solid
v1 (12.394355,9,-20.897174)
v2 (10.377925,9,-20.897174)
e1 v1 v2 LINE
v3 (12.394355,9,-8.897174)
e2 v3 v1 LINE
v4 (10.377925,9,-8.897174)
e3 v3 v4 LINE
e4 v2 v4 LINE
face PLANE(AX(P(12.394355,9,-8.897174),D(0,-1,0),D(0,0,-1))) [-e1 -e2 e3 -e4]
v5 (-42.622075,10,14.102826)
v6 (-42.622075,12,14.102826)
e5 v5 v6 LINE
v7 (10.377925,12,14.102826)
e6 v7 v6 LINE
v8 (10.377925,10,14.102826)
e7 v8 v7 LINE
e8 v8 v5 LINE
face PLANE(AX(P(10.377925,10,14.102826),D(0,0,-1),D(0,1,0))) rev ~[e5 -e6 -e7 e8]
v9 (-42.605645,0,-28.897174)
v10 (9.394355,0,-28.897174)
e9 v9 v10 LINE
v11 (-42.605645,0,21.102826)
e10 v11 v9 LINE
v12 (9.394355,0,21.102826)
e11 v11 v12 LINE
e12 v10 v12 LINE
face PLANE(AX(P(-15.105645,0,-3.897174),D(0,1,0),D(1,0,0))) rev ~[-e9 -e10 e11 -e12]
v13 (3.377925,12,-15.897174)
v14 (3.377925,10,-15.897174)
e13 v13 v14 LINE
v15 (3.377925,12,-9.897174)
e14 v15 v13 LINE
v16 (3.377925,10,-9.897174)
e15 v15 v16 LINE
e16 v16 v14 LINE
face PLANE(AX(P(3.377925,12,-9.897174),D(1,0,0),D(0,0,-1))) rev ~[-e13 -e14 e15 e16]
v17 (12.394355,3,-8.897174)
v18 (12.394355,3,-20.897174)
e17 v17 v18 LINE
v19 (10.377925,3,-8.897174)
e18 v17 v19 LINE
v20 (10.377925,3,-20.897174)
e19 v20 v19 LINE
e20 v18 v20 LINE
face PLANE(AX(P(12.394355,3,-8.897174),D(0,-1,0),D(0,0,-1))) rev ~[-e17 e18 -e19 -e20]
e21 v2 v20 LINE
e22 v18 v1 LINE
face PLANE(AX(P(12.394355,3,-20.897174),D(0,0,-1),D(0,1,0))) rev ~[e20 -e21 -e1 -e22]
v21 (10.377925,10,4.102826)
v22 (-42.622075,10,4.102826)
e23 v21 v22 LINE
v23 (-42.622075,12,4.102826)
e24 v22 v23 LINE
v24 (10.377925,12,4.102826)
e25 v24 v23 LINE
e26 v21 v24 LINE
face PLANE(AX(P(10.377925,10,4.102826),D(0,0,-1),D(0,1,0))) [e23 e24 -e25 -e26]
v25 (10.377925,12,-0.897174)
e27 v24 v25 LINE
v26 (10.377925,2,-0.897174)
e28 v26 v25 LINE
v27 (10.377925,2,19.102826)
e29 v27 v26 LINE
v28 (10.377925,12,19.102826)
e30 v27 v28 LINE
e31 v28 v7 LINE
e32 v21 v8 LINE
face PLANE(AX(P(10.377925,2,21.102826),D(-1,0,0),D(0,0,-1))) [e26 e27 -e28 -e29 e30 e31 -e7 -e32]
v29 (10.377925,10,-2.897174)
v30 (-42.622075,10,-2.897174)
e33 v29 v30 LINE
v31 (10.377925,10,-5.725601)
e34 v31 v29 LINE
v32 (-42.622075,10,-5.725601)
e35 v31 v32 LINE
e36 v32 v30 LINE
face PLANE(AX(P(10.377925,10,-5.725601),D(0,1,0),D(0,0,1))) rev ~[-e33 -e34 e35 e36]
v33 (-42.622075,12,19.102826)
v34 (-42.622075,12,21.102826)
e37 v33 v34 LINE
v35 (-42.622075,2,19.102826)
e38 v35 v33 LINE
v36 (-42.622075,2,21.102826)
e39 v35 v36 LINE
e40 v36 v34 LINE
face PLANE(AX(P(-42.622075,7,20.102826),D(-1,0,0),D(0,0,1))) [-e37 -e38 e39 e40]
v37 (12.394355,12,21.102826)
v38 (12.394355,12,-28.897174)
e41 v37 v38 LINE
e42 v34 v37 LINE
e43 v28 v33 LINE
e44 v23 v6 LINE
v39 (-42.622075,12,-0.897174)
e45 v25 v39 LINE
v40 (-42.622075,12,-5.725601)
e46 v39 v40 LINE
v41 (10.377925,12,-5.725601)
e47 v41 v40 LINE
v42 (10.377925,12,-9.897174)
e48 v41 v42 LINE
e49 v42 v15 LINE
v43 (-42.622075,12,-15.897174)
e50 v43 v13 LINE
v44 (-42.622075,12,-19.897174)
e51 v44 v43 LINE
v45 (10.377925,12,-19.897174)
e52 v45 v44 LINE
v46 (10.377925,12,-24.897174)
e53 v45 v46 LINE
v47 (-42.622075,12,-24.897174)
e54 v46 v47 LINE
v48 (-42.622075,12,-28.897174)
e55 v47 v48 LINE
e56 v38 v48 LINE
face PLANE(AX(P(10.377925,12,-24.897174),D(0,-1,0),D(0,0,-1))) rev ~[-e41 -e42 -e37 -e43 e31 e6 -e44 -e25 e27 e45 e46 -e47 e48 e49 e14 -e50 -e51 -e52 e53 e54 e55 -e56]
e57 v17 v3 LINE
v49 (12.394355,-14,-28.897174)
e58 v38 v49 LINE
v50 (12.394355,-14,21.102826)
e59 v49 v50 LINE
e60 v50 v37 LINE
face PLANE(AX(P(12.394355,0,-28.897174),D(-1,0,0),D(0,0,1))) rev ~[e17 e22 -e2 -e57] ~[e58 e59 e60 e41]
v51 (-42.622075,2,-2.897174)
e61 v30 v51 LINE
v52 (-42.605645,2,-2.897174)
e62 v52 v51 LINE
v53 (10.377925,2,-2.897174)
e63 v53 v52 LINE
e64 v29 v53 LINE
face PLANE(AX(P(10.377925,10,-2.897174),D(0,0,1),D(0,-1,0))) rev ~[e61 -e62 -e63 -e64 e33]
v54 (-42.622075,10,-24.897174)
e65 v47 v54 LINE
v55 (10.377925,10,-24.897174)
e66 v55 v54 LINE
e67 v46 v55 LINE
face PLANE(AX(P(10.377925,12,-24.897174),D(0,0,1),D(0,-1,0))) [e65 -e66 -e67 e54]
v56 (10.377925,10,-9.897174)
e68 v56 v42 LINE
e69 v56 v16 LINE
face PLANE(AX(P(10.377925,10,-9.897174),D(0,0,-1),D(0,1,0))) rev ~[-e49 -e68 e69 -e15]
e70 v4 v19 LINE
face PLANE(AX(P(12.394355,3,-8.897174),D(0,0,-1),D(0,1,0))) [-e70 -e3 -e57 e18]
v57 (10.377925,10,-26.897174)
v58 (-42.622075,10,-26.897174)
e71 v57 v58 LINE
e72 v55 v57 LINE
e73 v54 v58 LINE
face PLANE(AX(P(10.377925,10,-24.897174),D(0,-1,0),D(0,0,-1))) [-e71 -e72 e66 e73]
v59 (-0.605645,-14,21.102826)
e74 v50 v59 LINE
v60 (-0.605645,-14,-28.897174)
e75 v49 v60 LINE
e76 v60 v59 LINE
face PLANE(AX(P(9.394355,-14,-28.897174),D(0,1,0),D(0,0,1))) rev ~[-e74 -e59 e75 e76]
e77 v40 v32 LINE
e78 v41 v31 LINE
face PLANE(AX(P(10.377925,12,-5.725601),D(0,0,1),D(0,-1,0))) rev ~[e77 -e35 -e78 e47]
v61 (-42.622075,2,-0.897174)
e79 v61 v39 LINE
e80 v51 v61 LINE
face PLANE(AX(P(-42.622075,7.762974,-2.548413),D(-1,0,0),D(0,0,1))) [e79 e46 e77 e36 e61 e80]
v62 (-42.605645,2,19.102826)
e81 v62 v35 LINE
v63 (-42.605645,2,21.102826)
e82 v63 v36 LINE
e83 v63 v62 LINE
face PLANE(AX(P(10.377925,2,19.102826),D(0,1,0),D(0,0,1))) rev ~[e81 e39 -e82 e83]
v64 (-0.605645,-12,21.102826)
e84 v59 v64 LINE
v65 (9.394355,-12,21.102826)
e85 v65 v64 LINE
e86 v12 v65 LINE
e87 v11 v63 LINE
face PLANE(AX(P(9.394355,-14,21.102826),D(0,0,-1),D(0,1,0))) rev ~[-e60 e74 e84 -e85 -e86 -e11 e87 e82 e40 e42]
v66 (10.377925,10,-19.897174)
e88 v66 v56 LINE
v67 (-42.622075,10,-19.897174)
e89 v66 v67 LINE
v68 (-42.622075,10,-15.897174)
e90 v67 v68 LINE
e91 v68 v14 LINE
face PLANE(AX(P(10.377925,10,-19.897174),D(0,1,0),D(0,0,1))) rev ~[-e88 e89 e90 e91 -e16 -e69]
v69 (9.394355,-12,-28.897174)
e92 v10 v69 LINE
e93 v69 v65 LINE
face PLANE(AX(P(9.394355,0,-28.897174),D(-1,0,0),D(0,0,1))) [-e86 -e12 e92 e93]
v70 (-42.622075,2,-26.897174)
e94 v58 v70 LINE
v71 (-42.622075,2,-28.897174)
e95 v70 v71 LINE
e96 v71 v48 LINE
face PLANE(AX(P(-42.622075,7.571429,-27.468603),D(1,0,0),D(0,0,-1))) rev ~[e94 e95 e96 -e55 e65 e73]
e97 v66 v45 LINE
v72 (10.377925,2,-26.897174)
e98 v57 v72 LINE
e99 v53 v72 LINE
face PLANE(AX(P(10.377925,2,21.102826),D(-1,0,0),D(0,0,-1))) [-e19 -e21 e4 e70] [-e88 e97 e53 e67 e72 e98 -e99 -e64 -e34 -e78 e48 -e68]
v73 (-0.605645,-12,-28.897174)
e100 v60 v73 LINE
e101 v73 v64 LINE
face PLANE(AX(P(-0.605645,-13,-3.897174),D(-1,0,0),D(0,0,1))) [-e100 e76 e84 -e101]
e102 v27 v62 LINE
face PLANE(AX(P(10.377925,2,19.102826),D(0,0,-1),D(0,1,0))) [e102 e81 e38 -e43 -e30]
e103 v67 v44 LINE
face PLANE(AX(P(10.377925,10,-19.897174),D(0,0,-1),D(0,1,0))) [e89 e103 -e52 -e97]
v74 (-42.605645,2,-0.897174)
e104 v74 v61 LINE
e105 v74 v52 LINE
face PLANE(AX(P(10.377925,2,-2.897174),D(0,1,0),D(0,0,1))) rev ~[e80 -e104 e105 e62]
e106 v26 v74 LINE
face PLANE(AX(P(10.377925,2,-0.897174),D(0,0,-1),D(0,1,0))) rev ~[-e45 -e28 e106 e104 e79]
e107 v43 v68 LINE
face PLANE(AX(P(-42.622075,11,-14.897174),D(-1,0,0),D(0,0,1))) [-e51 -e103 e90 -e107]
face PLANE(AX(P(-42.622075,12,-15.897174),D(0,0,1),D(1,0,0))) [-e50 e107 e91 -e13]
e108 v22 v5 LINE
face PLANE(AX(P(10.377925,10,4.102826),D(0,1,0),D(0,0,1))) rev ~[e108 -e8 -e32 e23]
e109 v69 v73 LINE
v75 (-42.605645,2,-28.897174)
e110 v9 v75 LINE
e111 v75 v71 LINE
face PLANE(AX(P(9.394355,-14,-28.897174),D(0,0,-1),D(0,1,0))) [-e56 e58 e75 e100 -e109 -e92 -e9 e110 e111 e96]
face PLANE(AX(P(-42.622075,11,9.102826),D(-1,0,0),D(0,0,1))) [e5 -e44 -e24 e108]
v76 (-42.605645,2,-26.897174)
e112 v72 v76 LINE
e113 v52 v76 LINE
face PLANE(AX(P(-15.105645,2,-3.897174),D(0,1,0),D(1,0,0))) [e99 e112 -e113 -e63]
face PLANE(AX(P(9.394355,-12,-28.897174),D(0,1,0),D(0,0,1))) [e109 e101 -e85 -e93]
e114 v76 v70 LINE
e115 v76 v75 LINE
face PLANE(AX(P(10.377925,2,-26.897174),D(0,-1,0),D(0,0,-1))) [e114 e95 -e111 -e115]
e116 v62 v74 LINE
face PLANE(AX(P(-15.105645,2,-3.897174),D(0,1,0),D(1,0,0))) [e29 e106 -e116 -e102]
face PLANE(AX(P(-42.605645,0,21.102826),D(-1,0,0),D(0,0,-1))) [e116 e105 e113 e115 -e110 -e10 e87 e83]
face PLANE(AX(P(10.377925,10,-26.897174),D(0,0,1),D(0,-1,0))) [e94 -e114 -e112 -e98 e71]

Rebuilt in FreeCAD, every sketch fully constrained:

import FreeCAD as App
import Part
import Sketcher


def add_polygon(sketch, points):
    """Adds a closed chain of lines whose ends are joined by coincident constraints."""
    first, n = sketch.GeometryCount, len(points)
    for a, b in zip(points, points[1:] + points[:1]):
        sketch.addGeometry(Part.LineSegment(App.Vector(*a, 0), App.Vector(*b, 0)), False)
    for i in range(n):
        sketch.addConstraint(Sketcher.Constraint("Coincident", first + i, 2, first + (i + 1) % n, 1))

doc = App.newDocument("Part")
params = doc.addObject("Spreadsheet::Sheet", "Params")
for row, (alias, value) in enumerate([
    ("sketch1_width", "55 mm"),
    ("sketch1_height", "50 mm"),
    ("pad1_length", "2 mm"),
    ("sketch2_height", "50 mm"),
    ("pad2_length", "10 mm"),
    ("sketch3_width", "2 mm"),
    ("sketch3_width2", "10 mm"),
    ("pad3_length", "53 mm"),
    ("sketch4_width", "6 mm"),
    ("sketch4_height", "12 mm"),
    ("pocket1_length", "40 mm"),
    ("sketch5_width", "46 mm"),
    ("sketch5_height", "6 mm"),
    ("pocket2_length", "2 mm"),
    ("sketch6_width", "3 mm"),
    ("sketch6_height", "50 mm"),
    ("pad4_length", "14 mm"),
    ("sketch7_width", "2 mm"),
    ("sketch7_height", "50 mm"),
    ("pad5_length", "10 mm"),
], start=1):
    params.set(f"A{row}", alias)
    params.set(f"B{row}", "=" + value)
    params.setAlias(f"B{row}", alias)

body = doc.addObject("PartDesign::Body", "Body")

# Sketch on XZ plane
sketch1 = doc.addObject("Sketcher::SketchObject", "Sketch")
body.addObject(sketch1)
sketch1.AttachmentSupport = (doc.XZ_Plane, [""])
sketch1.MapMode = "FlatFace"
add_polygon(sketch1, [(-43, -29), (-43, 21), (12, 21), (12, -29)])  # lines 0-3
sketch1.addConstraint(Sketcher.Constraint("Vertical", 0))
sketch1.addConstraint(Sketcher.Constraint("Horizontal", 1))
sketch1.addConstraint(Sketcher.Constraint("Vertical", 2))
sketch1.addConstraint(Sketcher.Constraint("Horizontal", 3))
sketch1.addConstraint(Sketcher.Constraint("DistanceX", 1, 1, 1, 2, 55.0))
sketch1.addConstraint(Sketcher.Constraint("DistanceY", 0, 1, 0, 2, 50.0))
sketch1.addConstraint(Sketcher.Constraint("DistanceX", 0, 2, -1, 1, 42.605645))
sketch1.addConstraint(Sketcher.Constraint("DistanceY", -1, 1, 0, 2, 21.102826))
sketch1.setExpression("Constraints[8]", "Params.sketch1_width")
sketch1.setExpression("Constraints[9]", "Params.sketch1_height")
pad1 = doc.addObject("PartDesign::Pad", "Pad")
body.addObject(pad1)
pad1.Profile = sketch1
pad1.setExpression("Length", "Params.pad1_length")
pad1.Reversed = True

# Sketch on XZ plane
sketch2 = doc.addObject("Sketcher::SketchObject", "Sketch001")
body.addObject(sketch2)
sketch2.AttachmentSupport = (doc.XZ_Plane, [""])
sketch2.MapMode = "FlatFace"
sketch2.AttachmentOffset = App.Placement(App.Vector(0, 0, -2), App.Rotation())
add_polygon(sketch2, [(10.4, -28.9), (10.4, 21.1), (12.4, 21.1), (12.4, -28.9)])  # lines 0-3
sketch2.addConstraint(Sketcher.Constraint("Vertical", 0))
sketch2.addConstraint(Sketcher.Constraint("Horizontal", 1))
sketch2.addConstraint(Sketcher.Constraint("Vertical", 2))
sketch2.addConstraint(Sketcher.Constraint("Horizontal", 3))
sketch2.addConstraint(Sketcher.Constraint("DistanceY", 0, 1, 0, 2, 50.0))
sketch2.addConstraint(Sketcher.Constraint("DistanceX", 1, 1, 1, 2, 2.01643))
sketch2.addConstraint(Sketcher.Constraint("DistanceX", -1, 1, 0, 2, 10.377925))
sketch2.addConstraint(Sketcher.Constraint("DistanceY", -1, 1, 0, 2, 21.102826))
sketch2.setExpression("Constraints[8]", "Params.sketch2_height")
pad2 = doc.addObject("PartDesign::Pad", "Pad001")
body.addObject(pad2)
pad2.Profile = sketch2
pad2.setExpression("Length", "Params.pad2_length")
pad2.Reversed = True

# Sketch on YZ plane
sketch3 = doc.addObject("Sketcher::SketchObject", "Sketch002")
body.addObject(sketch3)
sketch3.AttachmentSupport = (doc.YZ_Plane, [""])
sketch3.MapMode = "FlatFace"
sketch3.AttachmentOffset = App.Placement(App.Vector(0, 0, 10.377925), App.Rotation())
add_polygon(sketch3, [(12, -19.9), (10, -19.9), (10, -9.9), (12, -9.9)])  # lines 0-3
add_polygon(sketch3, [(12, -24.9), (12, -28.9), (2, -28.9), (2, -26.9), (10, -26.9), (10, -24.9)])  # lines 4-9
add_polygon(sketch3, [(10, -2.9), (2, -2.9), (2, -0.9), (12, -0.9), (12, -5.7), (10, -5.7)])  # lines 10-15
add_polygon(sketch3, [(12, 4.1), (10, 4.1), (10, 14.1), (12, 14.1)])  # lines 16-19
add_polygon(sketch3, [(12, 19.1), (2, 19.1), (2, 21.1), (12, 21.1)])  # lines 20-23
sketch3.addConstraint(Sketcher.Constraint("Horizontal", 0))
sketch3.addConstraint(Sketcher.Constraint("Vertical", 1))
sketch3.addConstraint(Sketcher.Constraint("Horizontal", 2))
sketch3.addConstraint(Sketcher.Constraint("Vertical", 3))
sketch3.addConstraint(Sketcher.Constraint("Vertical", 4))
sketch3.addConstraint(Sketcher.Constraint("Horizontal", 5))
sketch3.addConstraint(Sketcher.Constraint("Vertical", 6))
sketch3.addConstraint(Sketcher.Constraint("Horizontal", 7))
sketch3.addConstraint(Sketcher.Constraint("Vertical", 8))
sketch3.addConstraint(Sketcher.Constraint("Horizontal", 9))
sketch3.addConstraint(Sketcher.Constraint("Horizontal", 10))
sketch3.addConstraint(Sketcher.Constraint("Vertical", 11))
sketch3.addConstraint(Sketcher.Constraint("Horizontal", 12))
sketch3.addConstraint(Sketcher.Constraint("Vertical", 13))
sketch3.addConstraint(Sketcher.Constraint("Horizontal", 14))
sketch3.addConstraint(Sketcher.Constraint("Vertical", 15))
sketch3.addConstraint(Sketcher.Constraint("Horizontal", 16))
sketch3.addConstraint(Sketcher.Constraint("Vertical", 17))
sketch3.addConstraint(Sketcher.Constraint("Horizontal", 18))
sketch3.addConstraint(Sketcher.Constraint("Vertical", 19))
sketch3.addConstraint(Sketcher.Constraint("Horizontal", 20))
sketch3.addConstraint(Sketcher.Constraint("Vertical", 21))
sketch3.addConstraint(Sketcher.Constraint("Horizontal", 22))
sketch3.addConstraint(Sketcher.Constraint("Vertical", 23))
sketch3.addConstraint(Sketcher.Constraint("Vertical", 3, 2, 4, 2))
sketch3.addConstraint(Sketcher.Constraint("Vertical", 1, 2, 7, 2))
sketch3.addConstraint(Sketcher.Constraint("Vertical", 6, 2, 10, 2))
sketch3.addConstraint(Sketcher.Constraint("Vertical", 9, 2, 12, 2))
sketch3.addConstraint(Sketcher.Constraint("Vertical", 8, 2, 14, 2))
sketch3.addConstraint(Sketcher.Constraint("Vertical", 15, 2, 16, 2))
sketch3.addConstraint(Sketcher.Constraint("Vertical", 13, 2, 18, 2))
sketch3.addConstraint(Sketcher.Constraint("Vertical", 11, 2, 20, 2))
sketch3.addConstraint(Sketcher.Constraint("Vertical", 19, 2, 22, 2))
sketch3.addConstraint(Sketcher.Constraint("Equal", 22, 1))
sketch3.addConstraint(Sketcher.Constraint("Equal", 18, 6))
sketch3.addConstraint(Sketcher.Constraint("Equal", 6, 8))
sketch3.addConstraint(Sketcher.Constraint("Equal", 8, 11))
sketch3.addConstraint(Sketcher.Constraint("Equal", 3, 17))
sketch3.addConstraint(Sketcher.Constraint("Equal", 11, 21))
sketch3.addConstraint(Sketcher.Constraint("DistanceX", 0, 2, 0, 1, 2.0))
sketch3.addConstraint(Sketcher.Constraint("DistanceX", 5, 2, 5, 1, 10.0))
sketch3.addConstraint(Sketcher.Constraint("DistanceX", -1, 1, 0, 2, 10.0))
sketch3.addConstraint(Sketcher.Constraint("DistanceY", 4, 2, 3, 2, 9.0))
sketch3.addConstraint(Sketcher.Constraint("DistanceY", 1, 2, 10, 2, 7.0))
sketch3.addConstraint(Sketcher.Constraint("DistanceY", 12, 2, 16, 2, 5.0))
sketch3.addConstraint(Sketcher.Constraint("DistanceY", 17, 2, 20, 2, 5.0))
sketch3.addConstraint(Sketcher.Constraint("DistanceY", 13, 2, -1, 1, 5.725601))
sketch3.addConstraint(Sketcher.Constraint("DistanceY", 13, 2, 13, 1, 4.828427))
sketch3.setExpression("Constraints[63]", "Params.sketch3_width")
sketch3.setExpression("Constraints[64]", "Params.sketch3_width2")
pad3 = doc.addObject("PartDesign::Pad", "Pad002")
body.addObject(pad3)
pad3.Profile = sketch3
pad3.setExpression("Length", "Params.pad3_length")
pad3.Reversed = True

# Sketch on YZ plane
sketch4 = doc.addObject("Sketcher::SketchObject", "Sketch003")
body.addObject(sketch4)
sketch4.AttachmentSupport = (doc.YZ_Plane, [""])
sketch4.MapMode = "FlatFace"
sketch4.AttachmentOffset = App.Placement(App.Vector(0, 0, 12.394355), App.Rotation())
add_polygon(sketch4, [(9, -9), (3, -9), (3, -21), (9, -21)])  # lines 0-3
sketch4.addConstraint(Sketcher.Constraint("Horizontal", 0))
sketch4.addConstraint(Sketcher.Constraint("Vertical", 1))
sketch4.addConstraint(Sketcher.Constraint("Horizontal", 2))
sketch4.addConstraint(Sketcher.Constraint("Vertical", 3))
sketch4.addConstraint(Sketcher.Constraint("DistanceX", 0, 2, 0, 1, 6.0))
sketch4.addConstraint(Sketcher.Constraint("DistanceY", 1, 2, 1, 1, 12.0))
sketch4.addConstraint(Sketcher.Constraint("DistanceX", -1, 1, 0, 2, 3.0))
sketch4.addConstraint(Sketcher.Constraint("DistanceY", 0, 2, -1, 1, 8.897174))
sketch4.setExpression("Constraints[8]", "Params.sketch4_width")
sketch4.setExpression("Constraints[9]", "Params.sketch4_height")
pocket1 = doc.addObject("PartDesign::Pocket", "Pocket")
body.addObject(pocket1)
pocket1.Profile = sketch4
pocket1.setExpression("Length", "Params.pocket1_length")

# Sketch on XZ plane
sketch5 = doc.addObject("Sketcher::SketchObject", "Sketch004")
body.addObject(sketch5)
sketch5.AttachmentSupport = (doc.XZ_Plane, [""])
sketch5.MapMode = "FlatFace"
sketch5.AttachmentOffset = App.Placement(App.Vector(0, 0, -12), App.Rotation())
add_polygon(sketch5, [(-43, -16), (-43, -10), (3, -10), (3, -16)])  # lines 0-3
sketch5.addConstraint(Sketcher.Constraint("Vertical", 0))
sketch5.addConstraint(Sketcher.Constraint("Horizontal", 1))
sketch5.addConstraint(Sketcher.Constraint("Vertical", 2))
sketch5.addConstraint(Sketcher.Constraint("Horizontal", 3))
sketch5.addConstraint(Sketcher.Constraint("DistanceX", 1, 1, 1, 2, 46.0))
sketch5.addConstraint(Sketcher.Constraint("DistanceY", 0, 1, 0, 2, 6.0))
sketch5.addConstraint(Sketcher.Constraint("DistanceX", 0, 2, -1, 1, 42.622075))
sketch5.addConstraint(Sketcher.Constraint("DistanceY", 0, 2, -1, 1, 9.897174))
sketch5.setExpression("Constraints[8]", "Params.sketch5_width")
sketch5.setExpression("Constraints[9]", "Params.sketch5_height")
pocket2 = doc.addObject("PartDesign::Pocket", "Pocket001")
body.addObject(pocket2)
pocket2.Profile = sketch5
pocket2.setExpression("Length", "Params.pocket2_length")
pocket2.Reversed = True

# Sketch on XZ plane
sketch6 = doc.addObject("Sketcher::SketchObject", "Sketch005")
body.addObject(sketch6)
sketch6.AttachmentSupport = (doc.XZ_Plane, [""])
sketch6.MapMode = "FlatFace"
add_polygon(sketch6, [(9.4, 21.1), (9.4, -28.9), (12.4, -28.9), (12.4, 21.1)])  # lines 0-3
sketch6.addConstraint(Sketcher.Constraint("Vertical", 0))
sketch6.addConstraint(Sketcher.Constraint("Horizontal", 1))
sketch6.addConstraint(Sketcher.Constraint("Vertical", 2))
sketch6.addConstraint(Sketcher.Constraint("Horizontal", 3))
sketch6.addConstraint(Sketcher.Constraint("DistanceX", 1, 1, 1, 2, 3.0))
sketch6.addConstraint(Sketcher.Constraint("DistanceY", 0, 2, 0, 1, 50.0))
sketch6.addConstraint(Sketcher.Constraint("DistanceX", -1, 1, 0, 2, 9.394355))
sketch6.addConstraint(Sketcher.Constraint("DistanceY", 0, 2, -1, 1, 28.897174))
sketch6.setExpression("Constraints[8]", "Params.sketch6_width")
sketch6.setExpression("Constraints[9]", "Params.sketch6_height")
pad4 = doc.addObject("PartDesign::Pad", "Pad003")
body.addObject(pad4)
pad4.Profile = sketch6
pad4.setExpression("Length", "Params.pad4_length")

# Sketch on YZ plane
sketch7 = doc.addObject("Sketcher::SketchObject", "Sketch006")
body.addObject(sketch7)
sketch7.AttachmentSupport = (doc.YZ_Plane, [""])
sketch7.MapMode = "FlatFace"
sketch7.AttachmentOffset = App.Placement(App.Vector(0, 0, 9.394355), App.Rotation())
add_polygon(sketch7, [(-12, -28.9), (-14, -28.9), (-14, 21.1), (-12, 21.1)])  # lines 0-3
sketch7.addConstraint(Sketcher.Constraint("Horizontal", 0))
sketch7.addConstraint(Sketcher.Constraint("Vertical", 1))
sketch7.addConstraint(Sketcher.Constraint("Horizontal", 2))
sketch7.addConstraint(Sketcher.Constraint("Vertical", 3))
sketch7.addConstraint(Sketcher.Constraint("DistanceX", 0, 2, 0, 1, 2.0))
sketch7.addConstraint(Sketcher.Constraint("DistanceY", 1, 1, 1, 2, 50.0))
sketch7.addConstraint(Sketcher.Constraint("DistanceX", 0, 2, -1, 1, 14.0))
sketch7.addConstraint(Sketcher.Constraint("DistanceY", 0, 2, -1, 1, 28.897174))
sketch7.setExpression("Constraints[8]", "Params.sketch7_width")
sketch7.setExpression("Constraints[9]", "Params.sketch7_height")
pad5 = doc.addObject("PartDesign::Pad", "Pad004")
body.addObject(pad5)
pad5.Profile = sketch7
pad5.setExpression("Length", "Params.pad5_length")
pad5.Reversed = True

doc.recompute()
